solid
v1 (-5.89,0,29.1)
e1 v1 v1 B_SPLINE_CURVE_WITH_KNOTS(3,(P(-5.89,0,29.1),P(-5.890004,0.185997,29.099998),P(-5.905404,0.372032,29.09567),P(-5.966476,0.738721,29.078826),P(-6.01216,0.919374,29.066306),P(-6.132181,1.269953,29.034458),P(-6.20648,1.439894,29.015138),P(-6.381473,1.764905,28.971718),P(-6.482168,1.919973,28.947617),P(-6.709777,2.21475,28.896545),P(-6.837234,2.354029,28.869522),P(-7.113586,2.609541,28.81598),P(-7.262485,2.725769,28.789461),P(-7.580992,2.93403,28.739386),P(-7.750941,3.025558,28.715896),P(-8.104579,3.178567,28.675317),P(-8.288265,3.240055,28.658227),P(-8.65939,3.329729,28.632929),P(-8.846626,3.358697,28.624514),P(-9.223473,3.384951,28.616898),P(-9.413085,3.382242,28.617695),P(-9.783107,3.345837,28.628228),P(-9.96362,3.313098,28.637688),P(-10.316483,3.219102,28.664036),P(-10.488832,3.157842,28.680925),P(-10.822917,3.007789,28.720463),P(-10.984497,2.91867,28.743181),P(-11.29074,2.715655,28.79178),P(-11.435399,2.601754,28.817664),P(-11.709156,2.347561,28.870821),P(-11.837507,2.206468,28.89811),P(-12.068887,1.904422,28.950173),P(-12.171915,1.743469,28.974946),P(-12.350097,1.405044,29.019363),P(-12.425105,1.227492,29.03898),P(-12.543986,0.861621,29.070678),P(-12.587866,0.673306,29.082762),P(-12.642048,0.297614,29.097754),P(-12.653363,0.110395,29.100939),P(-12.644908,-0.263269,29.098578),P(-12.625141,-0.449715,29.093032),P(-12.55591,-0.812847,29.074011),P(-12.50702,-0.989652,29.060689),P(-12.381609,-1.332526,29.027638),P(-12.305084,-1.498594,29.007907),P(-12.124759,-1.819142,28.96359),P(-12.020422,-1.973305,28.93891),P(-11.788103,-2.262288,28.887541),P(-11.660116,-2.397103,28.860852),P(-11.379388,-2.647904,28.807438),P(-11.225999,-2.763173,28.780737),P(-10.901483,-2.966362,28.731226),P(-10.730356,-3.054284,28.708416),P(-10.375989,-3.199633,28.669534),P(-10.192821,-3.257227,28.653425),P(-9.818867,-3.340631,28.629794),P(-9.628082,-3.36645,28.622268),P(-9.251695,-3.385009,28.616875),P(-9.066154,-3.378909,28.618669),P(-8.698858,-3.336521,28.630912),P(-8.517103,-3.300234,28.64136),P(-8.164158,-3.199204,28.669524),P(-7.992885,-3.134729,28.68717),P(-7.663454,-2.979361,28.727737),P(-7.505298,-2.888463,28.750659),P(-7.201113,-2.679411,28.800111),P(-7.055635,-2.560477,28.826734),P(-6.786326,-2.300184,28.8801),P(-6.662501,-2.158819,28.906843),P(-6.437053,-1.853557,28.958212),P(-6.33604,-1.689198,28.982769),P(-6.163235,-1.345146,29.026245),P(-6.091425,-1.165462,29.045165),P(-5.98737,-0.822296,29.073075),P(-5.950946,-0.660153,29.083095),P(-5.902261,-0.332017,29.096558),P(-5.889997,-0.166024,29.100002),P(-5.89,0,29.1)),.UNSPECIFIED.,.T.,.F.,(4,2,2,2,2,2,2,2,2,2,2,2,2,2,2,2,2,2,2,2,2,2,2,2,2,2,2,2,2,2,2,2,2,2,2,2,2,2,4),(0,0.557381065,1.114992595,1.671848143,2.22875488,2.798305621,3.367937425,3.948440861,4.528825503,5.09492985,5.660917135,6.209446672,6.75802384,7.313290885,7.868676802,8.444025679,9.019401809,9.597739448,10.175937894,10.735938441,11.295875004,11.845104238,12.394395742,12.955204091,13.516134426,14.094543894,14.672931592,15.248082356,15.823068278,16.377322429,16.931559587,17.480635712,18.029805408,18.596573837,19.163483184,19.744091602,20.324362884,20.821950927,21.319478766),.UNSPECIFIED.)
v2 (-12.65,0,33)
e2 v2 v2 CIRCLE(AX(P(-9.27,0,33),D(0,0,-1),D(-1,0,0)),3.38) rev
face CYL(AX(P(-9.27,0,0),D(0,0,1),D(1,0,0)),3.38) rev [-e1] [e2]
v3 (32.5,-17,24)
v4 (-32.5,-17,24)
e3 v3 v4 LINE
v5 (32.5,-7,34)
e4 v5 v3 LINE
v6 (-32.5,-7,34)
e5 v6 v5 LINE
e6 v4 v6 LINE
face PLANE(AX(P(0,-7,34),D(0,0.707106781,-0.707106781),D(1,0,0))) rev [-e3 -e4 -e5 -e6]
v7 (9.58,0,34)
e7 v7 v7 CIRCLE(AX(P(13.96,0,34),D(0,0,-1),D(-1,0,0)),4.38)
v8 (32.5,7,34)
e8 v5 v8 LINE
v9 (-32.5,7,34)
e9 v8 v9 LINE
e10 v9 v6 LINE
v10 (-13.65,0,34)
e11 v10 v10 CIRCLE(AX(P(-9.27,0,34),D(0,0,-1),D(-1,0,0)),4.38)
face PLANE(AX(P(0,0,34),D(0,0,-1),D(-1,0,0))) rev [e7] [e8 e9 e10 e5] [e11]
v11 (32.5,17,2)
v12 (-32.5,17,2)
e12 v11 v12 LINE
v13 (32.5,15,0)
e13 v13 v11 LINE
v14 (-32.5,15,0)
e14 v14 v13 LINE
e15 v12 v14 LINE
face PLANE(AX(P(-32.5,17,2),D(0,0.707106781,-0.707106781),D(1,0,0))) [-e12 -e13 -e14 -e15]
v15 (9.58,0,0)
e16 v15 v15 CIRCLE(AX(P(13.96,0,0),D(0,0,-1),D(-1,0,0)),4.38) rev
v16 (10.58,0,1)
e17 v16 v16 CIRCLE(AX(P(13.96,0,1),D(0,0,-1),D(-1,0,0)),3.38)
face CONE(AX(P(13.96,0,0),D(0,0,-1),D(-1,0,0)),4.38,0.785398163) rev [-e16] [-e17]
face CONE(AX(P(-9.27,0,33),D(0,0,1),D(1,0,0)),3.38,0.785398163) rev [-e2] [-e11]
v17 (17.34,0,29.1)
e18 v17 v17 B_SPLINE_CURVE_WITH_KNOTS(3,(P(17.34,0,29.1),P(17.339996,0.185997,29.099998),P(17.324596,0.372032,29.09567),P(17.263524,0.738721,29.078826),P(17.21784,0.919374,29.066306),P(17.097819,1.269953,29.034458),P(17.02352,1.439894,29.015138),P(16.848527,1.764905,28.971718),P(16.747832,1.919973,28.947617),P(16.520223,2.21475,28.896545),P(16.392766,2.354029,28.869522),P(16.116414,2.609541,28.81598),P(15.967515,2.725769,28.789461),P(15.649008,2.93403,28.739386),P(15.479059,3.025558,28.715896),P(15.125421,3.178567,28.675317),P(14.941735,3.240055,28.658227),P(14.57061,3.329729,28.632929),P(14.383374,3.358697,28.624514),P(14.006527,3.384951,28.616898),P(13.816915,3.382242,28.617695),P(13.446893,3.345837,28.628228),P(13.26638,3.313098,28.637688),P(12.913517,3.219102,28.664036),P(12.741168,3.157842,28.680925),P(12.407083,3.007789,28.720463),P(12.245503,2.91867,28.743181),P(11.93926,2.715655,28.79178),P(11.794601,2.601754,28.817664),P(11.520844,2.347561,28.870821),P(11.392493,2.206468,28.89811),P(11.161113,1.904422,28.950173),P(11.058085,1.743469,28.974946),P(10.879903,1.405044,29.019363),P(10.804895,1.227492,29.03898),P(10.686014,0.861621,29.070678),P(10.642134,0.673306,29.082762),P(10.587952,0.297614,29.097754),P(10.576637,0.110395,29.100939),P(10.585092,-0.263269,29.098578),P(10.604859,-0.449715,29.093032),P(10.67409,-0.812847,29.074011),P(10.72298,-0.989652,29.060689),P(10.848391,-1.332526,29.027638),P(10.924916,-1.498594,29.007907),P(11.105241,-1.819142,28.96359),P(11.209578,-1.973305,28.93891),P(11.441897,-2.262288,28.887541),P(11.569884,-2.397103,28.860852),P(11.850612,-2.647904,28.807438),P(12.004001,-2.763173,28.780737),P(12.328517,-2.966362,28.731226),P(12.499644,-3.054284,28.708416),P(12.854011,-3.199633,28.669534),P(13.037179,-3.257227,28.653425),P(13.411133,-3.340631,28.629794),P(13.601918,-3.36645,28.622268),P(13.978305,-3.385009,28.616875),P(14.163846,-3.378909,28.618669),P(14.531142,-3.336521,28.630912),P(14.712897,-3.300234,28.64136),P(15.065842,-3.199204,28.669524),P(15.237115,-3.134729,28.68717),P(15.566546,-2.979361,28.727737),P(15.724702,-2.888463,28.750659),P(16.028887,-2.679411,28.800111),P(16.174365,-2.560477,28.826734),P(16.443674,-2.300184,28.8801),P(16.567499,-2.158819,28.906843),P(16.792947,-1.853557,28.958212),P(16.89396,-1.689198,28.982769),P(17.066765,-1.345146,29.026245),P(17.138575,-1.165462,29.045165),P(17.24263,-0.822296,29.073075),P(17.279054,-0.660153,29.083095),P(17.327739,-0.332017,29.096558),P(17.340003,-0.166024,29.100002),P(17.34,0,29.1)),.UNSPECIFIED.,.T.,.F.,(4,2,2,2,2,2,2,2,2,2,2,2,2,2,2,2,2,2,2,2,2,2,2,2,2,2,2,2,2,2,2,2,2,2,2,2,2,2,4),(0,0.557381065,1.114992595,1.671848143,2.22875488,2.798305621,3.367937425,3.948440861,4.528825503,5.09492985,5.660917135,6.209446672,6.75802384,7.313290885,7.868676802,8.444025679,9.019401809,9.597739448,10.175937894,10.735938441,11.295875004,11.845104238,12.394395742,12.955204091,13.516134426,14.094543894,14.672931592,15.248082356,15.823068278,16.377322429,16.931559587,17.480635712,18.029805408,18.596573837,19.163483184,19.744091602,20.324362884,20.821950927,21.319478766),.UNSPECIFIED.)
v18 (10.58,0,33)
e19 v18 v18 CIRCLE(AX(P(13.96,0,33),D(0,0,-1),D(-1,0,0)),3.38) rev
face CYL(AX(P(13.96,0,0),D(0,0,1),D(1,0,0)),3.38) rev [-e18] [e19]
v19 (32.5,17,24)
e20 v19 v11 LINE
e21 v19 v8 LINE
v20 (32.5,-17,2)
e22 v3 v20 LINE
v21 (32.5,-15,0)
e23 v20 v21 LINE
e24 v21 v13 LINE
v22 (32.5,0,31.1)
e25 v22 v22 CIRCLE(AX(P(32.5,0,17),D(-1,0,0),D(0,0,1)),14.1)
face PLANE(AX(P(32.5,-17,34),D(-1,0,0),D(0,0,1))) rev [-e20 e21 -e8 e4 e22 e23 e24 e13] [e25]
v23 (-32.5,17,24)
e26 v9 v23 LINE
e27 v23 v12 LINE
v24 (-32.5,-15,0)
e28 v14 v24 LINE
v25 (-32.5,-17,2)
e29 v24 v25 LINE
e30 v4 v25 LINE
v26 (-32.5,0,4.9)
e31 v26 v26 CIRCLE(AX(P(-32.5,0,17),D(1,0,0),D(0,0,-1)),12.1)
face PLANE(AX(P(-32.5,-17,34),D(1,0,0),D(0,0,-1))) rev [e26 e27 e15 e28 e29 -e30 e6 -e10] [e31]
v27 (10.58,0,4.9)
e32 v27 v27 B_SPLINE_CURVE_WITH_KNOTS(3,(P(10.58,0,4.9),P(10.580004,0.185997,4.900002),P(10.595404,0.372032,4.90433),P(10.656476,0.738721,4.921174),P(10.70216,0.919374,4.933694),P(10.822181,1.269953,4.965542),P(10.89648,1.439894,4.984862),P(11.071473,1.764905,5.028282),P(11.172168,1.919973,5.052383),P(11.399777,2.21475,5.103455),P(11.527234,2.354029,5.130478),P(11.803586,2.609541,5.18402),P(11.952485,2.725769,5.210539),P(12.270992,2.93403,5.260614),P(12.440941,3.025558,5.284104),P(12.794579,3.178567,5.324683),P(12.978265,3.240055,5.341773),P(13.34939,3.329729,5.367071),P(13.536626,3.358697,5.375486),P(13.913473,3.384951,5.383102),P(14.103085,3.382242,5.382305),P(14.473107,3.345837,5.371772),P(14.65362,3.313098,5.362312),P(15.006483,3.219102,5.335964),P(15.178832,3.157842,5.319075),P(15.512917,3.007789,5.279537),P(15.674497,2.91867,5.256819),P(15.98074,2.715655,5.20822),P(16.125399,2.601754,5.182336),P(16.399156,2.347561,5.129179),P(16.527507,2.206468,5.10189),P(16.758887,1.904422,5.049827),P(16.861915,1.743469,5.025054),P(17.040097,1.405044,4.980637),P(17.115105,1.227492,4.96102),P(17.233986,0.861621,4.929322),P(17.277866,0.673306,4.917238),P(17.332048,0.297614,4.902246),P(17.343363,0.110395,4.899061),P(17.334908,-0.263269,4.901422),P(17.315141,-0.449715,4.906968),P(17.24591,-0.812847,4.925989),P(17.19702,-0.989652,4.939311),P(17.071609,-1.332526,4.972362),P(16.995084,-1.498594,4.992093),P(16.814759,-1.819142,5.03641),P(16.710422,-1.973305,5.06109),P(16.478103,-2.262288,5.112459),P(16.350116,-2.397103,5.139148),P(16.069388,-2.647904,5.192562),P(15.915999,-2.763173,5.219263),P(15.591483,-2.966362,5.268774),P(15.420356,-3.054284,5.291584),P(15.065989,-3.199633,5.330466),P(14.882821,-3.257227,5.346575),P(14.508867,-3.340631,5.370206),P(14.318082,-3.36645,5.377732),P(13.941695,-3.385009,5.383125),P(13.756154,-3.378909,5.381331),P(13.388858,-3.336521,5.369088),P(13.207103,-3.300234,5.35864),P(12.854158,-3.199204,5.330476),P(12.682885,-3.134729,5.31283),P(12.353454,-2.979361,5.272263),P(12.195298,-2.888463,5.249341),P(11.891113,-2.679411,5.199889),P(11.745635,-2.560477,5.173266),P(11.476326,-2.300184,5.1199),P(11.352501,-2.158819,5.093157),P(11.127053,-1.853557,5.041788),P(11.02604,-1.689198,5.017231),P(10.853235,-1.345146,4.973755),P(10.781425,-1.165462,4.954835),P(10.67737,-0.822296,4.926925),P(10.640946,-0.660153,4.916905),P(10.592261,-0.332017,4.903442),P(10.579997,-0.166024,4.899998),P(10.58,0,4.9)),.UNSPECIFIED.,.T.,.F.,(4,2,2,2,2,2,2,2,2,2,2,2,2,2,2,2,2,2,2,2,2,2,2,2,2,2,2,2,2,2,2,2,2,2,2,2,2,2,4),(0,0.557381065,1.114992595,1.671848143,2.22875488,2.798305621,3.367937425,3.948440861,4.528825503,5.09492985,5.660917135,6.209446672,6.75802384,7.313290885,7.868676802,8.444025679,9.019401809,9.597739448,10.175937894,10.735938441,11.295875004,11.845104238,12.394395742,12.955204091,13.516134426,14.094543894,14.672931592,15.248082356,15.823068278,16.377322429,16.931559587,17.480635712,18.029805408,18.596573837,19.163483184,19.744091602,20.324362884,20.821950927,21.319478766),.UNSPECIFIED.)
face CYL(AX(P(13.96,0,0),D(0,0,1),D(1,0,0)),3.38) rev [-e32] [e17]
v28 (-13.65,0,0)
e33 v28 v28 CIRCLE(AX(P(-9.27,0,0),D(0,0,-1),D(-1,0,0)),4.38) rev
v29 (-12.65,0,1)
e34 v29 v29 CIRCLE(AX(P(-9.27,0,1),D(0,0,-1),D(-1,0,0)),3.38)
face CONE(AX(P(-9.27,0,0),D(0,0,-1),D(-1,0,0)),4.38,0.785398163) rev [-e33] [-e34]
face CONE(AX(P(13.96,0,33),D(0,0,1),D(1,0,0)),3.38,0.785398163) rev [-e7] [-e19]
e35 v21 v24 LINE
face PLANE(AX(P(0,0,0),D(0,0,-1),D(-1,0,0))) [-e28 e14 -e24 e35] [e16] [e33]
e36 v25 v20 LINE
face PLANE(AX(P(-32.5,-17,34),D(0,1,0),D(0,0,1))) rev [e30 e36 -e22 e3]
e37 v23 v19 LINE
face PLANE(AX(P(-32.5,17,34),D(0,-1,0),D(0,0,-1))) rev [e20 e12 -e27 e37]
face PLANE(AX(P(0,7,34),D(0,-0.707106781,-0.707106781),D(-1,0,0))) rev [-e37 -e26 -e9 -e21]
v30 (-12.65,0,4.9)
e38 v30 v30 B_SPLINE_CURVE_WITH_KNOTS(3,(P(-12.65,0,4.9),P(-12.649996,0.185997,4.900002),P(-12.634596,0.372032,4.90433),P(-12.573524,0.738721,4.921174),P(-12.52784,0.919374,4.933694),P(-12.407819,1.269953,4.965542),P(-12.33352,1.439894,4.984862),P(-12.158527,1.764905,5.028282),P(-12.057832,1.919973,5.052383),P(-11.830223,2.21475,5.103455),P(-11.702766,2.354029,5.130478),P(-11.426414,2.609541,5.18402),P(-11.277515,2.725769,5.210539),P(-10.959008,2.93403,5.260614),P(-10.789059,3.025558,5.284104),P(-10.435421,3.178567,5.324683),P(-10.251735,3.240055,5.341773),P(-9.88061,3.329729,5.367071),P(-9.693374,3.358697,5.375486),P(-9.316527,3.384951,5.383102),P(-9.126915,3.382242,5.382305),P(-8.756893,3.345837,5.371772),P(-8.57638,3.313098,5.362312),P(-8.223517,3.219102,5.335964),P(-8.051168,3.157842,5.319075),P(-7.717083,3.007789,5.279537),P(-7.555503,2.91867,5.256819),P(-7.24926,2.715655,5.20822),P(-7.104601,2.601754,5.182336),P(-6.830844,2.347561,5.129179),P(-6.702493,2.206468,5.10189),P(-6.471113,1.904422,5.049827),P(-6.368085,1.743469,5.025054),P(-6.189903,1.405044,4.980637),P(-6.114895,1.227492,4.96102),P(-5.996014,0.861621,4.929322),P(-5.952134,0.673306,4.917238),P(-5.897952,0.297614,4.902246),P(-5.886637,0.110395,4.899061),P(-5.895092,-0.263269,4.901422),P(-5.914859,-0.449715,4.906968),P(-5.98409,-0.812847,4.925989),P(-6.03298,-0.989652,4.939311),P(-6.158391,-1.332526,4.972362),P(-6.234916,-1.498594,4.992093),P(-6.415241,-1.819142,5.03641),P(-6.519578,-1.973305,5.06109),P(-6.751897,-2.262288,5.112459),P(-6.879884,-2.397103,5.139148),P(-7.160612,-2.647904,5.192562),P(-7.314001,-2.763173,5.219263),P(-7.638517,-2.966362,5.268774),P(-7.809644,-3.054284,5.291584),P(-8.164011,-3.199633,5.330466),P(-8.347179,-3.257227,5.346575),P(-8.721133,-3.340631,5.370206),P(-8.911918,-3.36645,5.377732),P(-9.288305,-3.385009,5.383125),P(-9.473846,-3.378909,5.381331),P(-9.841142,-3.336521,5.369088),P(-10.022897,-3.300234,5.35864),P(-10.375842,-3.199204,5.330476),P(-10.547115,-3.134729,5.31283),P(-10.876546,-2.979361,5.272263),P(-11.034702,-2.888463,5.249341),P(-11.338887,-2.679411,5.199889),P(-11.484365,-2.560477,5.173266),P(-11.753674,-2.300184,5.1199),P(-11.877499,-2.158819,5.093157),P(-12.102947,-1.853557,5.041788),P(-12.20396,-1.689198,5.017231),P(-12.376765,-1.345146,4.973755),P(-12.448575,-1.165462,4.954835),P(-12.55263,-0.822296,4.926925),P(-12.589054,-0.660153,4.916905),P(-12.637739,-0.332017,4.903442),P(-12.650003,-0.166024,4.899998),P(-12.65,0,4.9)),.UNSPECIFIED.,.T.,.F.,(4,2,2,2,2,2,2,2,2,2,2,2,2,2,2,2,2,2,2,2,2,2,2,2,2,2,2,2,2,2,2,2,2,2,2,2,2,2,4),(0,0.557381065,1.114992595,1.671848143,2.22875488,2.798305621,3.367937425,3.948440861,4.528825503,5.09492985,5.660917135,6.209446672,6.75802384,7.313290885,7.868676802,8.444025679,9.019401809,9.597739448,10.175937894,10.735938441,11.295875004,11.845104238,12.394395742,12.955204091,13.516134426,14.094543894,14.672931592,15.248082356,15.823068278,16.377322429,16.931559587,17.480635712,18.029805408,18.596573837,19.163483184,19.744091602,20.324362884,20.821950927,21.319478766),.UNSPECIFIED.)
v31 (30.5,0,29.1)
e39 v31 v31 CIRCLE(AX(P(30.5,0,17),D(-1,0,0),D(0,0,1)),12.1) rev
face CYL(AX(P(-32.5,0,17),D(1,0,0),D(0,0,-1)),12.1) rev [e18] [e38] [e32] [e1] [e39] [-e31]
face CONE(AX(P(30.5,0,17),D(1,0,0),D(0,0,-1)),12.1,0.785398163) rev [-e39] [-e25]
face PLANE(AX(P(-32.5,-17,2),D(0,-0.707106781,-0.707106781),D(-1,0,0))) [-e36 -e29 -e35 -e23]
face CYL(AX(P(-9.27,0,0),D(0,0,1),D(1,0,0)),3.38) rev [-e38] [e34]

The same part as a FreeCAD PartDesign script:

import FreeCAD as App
import Part
import Sketcher

V = App.Vector
Q = App.Units.Quantity


def edges_at(feature, points):
    """Names of the edges that pass closest to the given points."""
    edges = feature.Shape.Edges
    near = lambda p: min(range(len(edges)), key=lambda i: edges[i].distToShape(Part.Vertex(*p))[0])
    return sorted({f"Edge{near(p) + 1}" for p in points})

doc = App.newDocument("Part")
params = doc.addObject("Spreadsheet::Sheet", "Params")
for row, (alias, value) in enumerate([
    ("sketch1_width", "65 mm"),
    ("sketch1_height", "34 mm"),
    ("pad1_length", "34 mm"),
    ("chamfer_size", "10 mm"),
    ("chamfer2_size", "2 mm"),
    ("sketch2_diameter", "24.2 mm"),
    ("chamfer3_size", "2 mm"),
    ("sketch3_diameter", "6.76 mm"),
    ("chamfer4_size", "1 mm"),
], start=1):
    params.set(f"A{row}", alias)
    params.set(f"B{row}", "=" + value)
    params.setAlias(f"B{row}", alias)

body = doc.addObject("PartDesign::Body", "Body")

sketch1 = body.newObject("Sketcher::SketchObject", "Sketch")
sketch1.AttachmentSupport = (doc.getObject("XY_Plane"), [""])
sketch1.MapMode = "FlatFace"
sketch1.addGeometry(Part.LineSegment(V(-32.5, 17, 0), V(-32.5, -17, 0)), False)
sketch1.addGeometry(Part.LineSegment(V(-32.5, -17, 0), V(32.5, -17, 0)), False)
sketch1.addGeometry(Part.LineSegment(V(32.5, -17, 0), V(32.5, 17, 0)), False)
sketch1.addGeometry(Part.LineSegment(V(32.5, 17, 0), V(-32.5, 17, 0)), False)
sketch1.addConstraint(Sketcher.Constraint("Coincident", 0, 2, 1, 1))
sketch1.addConstraint(Sketcher.Constraint("Coincident", 1, 2, 2, 1))
sketch1.addConstraint(Sketcher.Constraint("Coincident", 2, 2, 3, 1))
sketch1.addConstraint(Sketcher.Constraint("Coincident", 3, 2, 0, 1))
sketch1.addConstraint(Sketcher.Constraint("Vertical", 0))
sketch1.addConstraint(Sketcher.Constraint("Horizontal", 1))
sketch1.addConstraint(Sketcher.Constraint("Vertical", 2))
sketch1.addConstraint(Sketcher.Constraint("Horizontal", 3))
sketch1.addConstraint(Sketcher.Constraint("Symmetric", 0, 2, 2, 2, -1, 1))
sketch1.addConstraint(Sketcher.Constraint("DistanceX", 1, 1, 1, 2, Q("65 mm")))
sketch1.addConstraint(Sketcher.Constraint("DistanceY", 0, 2, 0, 1, Q("34 mm")))
sketch1.setExpression("Constraints[9]", "Params.sketch1_width")
sketch1.setExpression("Constraints[10]", "Params.sketch1_height")
pad1 = body.newObject("PartDesign::Pad", "Pad")
pad1.Profile = sketch1
pad1.setExpression("Length", "Params.pad1_length")
doc.recompute()

chamfer = body.newObject("PartDesign::Chamfer", "Chamfer")
chamfer.Base = (pad1, edges_at(pad1, [(0, -17, 34), (0, 17, 34)]))
chamfer.setExpression("Size", "Params.chamfer_size")
doc.recompute()

chamfer2 = body.newObject("PartDesign::Chamfer", "Chamfer001")
chamfer2.Base = (chamfer, edges_at(chamfer, [(0, -17, 0), (0, 17, 0)]))
chamfer2.setExpression("Size", "Params.chamfer2_size")

sketch2 = body.newObject("Sketcher::SketchObject", "Sketch001")
sketch2.AttachmentSupport = (doc.getObject("YZ_Plane"), [""])
sketch2.MapMode = "FlatFace"
sketch2.AttachmentOffset = App.Placement(V(0, 0, 32.5), App.Rotation())
sketch2.addGeometry(Part.Circle(V(0, 17, 0), V(0, 0, 1), 12.1), False)
sketch2.addConstraint(Sketcher.Constraint("PointOnObject", 0, 3, -2))
sketch2.addConstraint(Sketcher.Constraint("Diameter", 0, Q("24.2 mm")))
sketch2.addConstraint(Sketcher.Constraint("DistanceY", -1, 1, 0, 3, Q("17 mm")))
sketch2.setExpression("Constraints[1]", "Params.sketch2_diameter")
pocket1 = body.newObject("PartDesign::Pocket", "Pocket")
pocket1.Profile = sketch2
pocket1.Type = "ThroughAll"
doc.recompute()

chamfer3 = body.newObject("PartDesign::Chamfer", "Chamfer002")
chamfer3.Base = (pocket1, edges_at(pocket1, [(32.5, 0, 29.1)]))
chamfer3.setExpression("Size", "Params.chamfer3_size")

sketch3 = body.newObject("Sketcher::SketchObject", "Sketch002")
sketch3.AttachmentSupport = (doc.getObject("XY_Plane"), [""])
sketch3.MapMode = "FlatFace"
sketch3.AttachmentOffset = App.Placement(V(0, 0, 34), App.Rotation())
sketch3.addGeometry(Part.Circle(V(-9.27, 0, 0), V(0, 0, 1), 3.38), False)
sketch3.addGeometry(Part.Circle(V(13.96, 0, 0), V(0, 0, 1), 3.38), False)
sketch3.addConstraint(Sketcher.Constraint("Equal", 0, 1))
sketch3.addConstraint(Sketcher.Constraint("PointOnObject", 0, 3, -1))
sketch3.addConstraint(Sketcher.Constraint("PointOnObject", 1, 3, -1))
sketch3.addConstraint(Sketcher.Constraint("Diameter", 0, Q("6.76 mm")))
sketch3.addConstraint(Sketcher.Constraint("DistanceX", 0, 3, -1, 1, Q("9.27 mm")))
sketch3.addConstraint(Sketcher.Constraint("DistanceX", -1, 1, 1, 3, Q("13.96 mm")))
sketch3.setExpression("Constraints[3]", "Params.sketch3_diameter")
pocket2 = body.newObject("PartDesign::Pocket", "Pocket001")
pocket2.Profile = sketch3
pocket2.Type = "ThroughAll"
doc.recompute()

chamfer4 = body.newObject("PartDesign::Chamfer", "Chamfer003")
chamfer4.Base = (pocket2, edges_at(pocket2, [
    (-12.65, 0, 0),
    (-12.65, 0, 34),
    (10.58, 0, 0),
    (10.58, 0, 34),
]))
chamfer4.setExpression("Size", "Params.chamfer4_size")

doc.recompute()
